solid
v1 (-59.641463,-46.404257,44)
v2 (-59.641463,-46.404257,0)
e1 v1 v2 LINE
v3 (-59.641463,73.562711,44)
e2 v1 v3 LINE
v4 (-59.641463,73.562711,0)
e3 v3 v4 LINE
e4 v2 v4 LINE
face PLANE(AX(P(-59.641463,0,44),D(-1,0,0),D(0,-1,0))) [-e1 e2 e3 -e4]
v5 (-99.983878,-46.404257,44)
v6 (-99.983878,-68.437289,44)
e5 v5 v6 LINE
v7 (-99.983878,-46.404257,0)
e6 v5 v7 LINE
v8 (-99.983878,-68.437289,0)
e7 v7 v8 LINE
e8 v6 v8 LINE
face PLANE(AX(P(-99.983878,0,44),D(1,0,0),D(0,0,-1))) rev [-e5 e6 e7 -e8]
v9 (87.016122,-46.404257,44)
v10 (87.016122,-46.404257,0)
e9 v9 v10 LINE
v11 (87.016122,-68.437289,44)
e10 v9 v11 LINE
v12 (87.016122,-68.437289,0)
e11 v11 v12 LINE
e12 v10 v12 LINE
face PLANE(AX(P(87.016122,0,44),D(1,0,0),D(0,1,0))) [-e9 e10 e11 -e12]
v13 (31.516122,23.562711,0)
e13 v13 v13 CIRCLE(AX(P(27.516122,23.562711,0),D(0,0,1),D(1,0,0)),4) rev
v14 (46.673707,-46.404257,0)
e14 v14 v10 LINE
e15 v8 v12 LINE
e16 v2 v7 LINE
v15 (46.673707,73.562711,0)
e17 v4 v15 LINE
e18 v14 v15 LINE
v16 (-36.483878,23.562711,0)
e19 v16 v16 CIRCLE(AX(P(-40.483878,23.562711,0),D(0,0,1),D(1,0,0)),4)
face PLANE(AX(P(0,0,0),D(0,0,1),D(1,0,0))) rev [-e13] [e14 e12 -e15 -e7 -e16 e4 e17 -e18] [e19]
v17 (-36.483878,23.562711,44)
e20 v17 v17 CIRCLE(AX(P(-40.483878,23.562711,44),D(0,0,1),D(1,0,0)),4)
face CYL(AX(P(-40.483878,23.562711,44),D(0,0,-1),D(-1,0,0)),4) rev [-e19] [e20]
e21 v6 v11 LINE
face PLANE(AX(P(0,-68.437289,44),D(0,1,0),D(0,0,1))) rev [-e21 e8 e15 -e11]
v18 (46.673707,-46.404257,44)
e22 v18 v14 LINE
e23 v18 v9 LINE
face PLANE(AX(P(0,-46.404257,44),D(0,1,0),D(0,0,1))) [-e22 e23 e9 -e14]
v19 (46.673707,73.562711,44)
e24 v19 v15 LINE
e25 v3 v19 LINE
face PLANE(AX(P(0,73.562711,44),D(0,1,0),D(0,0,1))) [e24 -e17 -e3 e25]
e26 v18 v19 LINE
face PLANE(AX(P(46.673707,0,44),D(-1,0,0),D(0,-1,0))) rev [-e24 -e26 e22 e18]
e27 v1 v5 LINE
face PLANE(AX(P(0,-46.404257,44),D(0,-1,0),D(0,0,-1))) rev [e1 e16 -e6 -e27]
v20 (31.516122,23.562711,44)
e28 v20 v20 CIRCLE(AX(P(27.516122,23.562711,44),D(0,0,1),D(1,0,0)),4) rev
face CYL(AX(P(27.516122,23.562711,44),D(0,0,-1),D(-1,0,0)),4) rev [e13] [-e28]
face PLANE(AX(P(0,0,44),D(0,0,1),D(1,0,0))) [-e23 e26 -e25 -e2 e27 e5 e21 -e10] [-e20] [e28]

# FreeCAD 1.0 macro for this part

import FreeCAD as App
import Part
import Sketcher
from FreeCAD import Vector
Q = App.Units.Quantity

doc = App.newDocument("Part")
params = doc.addObject("Spreadsheet::Sheet", "Params")
for row, (alias, value) in enumerate([
    ("sketch1_diameter", "8 mm"),
    ("sketch1_width", "187 mm"),
    ("pad1_length", "44 mm"),
], start=1):
    params.set(f"A{row}", alias)
    params.set(f"B{row}", "=" + value)
    params.setAlias(f"B{row}", alias)

body = doc.addObject("PartDesign::Body", "Body")

sketch1 = body.newObject("Sketcher::SketchObject", "Sketch")
sketch1.AttachmentSupport = (doc.getObject("XY_Plane"), [""])
sketch1.MapMode = "FlatFace"
sketch1.addGeometry([
    Part.LineSegment(Vector(87, -46.4, 0), Vector(46.7, -46.4, 0)),
    Part.LineSegment(Vector(46.7, -46.4, 0), Vector(46.7, 73.6, 0)),
    Part.LineSegment(Vector(46.7, 73.6, 0), Vector(-59.6, 73.6, 0)),
    Part.LineSegment(Vector(-59.6, 73.6, 0), Vector(-59.6, -46.4, 0)),
    Part.LineSegment(Vector(-59.6, -46.4, 0), Vector(-100, -46.4, 0)),
    Part.LineSegment(Vector(-100, -46.4, 0), Vector(-100, -68.4, 0)),
    Part.LineSegment(Vector(-100, -68.4, 0), Vector(87, -68.4, 0)),
    Part.LineSegment(Vector(87, -68.4, 0), Vector(87, -46.4, 0)),
    Part.Circle(Vector(27.5, 23.6, 0), Vector(0, 0, 1), 4),
    Part.Circle(Vector(-40.5, 23.6, 0), Vector(0, 0, 1), 4),
], False)
sketch1.addConstraint([
    Sketcher.Constraint("Coincident", 0, 2, 1, 1),
    Sketcher.Constraint("Coincident", 1, 2, 2, 1),
    Sketcher.Constraint("Coincident", 2, 2, 3, 1),
    Sketcher.Constraint("Coincident", 3, 2, 4, 1),
    Sketcher.Constraint("Coincident", 4, 2, 5, 1),
    Sketcher.Constraint("Coincident", 5, 2, 6, 1),
    Sketcher.Constraint("Coincident", 6, 2, 7, 1),
    Sketcher.Constraint("Coincident", 7, 2, 0, 1),
    Sketcher.Constraint("Horizontal", 0),
    Sketcher.Constraint("Vertical", 1),
    Sketcher.Constraint("Horizontal", 2),
    Sketcher.Constraint("Vertical", 3),
    Sketcher.Constraint("Horizontal", 4),
    Sketcher.Constraint("Vertical", 5),
    Sketcher.Constraint("Horizontal", 6),
    Sketcher.Constraint("Vertical", 7),
    Sketcher.Constraint("Equal", 8, 9),
    Sketcher.Constraint("Horizontal", 8, 3, 9, 3),
    Sketcher.Constraint("Horizontal", 0, 2, 3, 2),
    Sketcher.Constraint("Equal", 0, 4),
    Sketcher.Constraint("Diameter", 8, Q("8 mm")),
    Sketcher.Constraint("DistanceX", 6, 1, 6, 2, Q("187 mm")),
    Sketcher.Constraint("DistanceX", 9, 3, 8, 3, Q("68 mm")),
    Sketcher.Constraint("DistanceY", 8, 3, 1, 2, Q("50 mm")),
    Sketcher.Constraint("DistanceY", 5, 2, 9, 3, Q("92 mm")),
    Sketcher.Constraint("DistanceX", 4, 2, 9, 3, Q("59.5 mm")),
    Sketcher.Constraint("DistanceX", 2, 2, 2, 1, Q("106.31517 mm")),
    Sketcher.Constraint("DistanceY", 1, 1, 1, 2, Q("119.966968 mm")),
    Sketcher.Constraint("DistanceY", -1, 1, 8, 3, Q("23.562711 mm")),
    Sketcher.Constraint("DistanceX", -1, 1, 8, 3, Q("27.516122 mm")),
])
sketch1.setExpression("Constraints[20]", "Params.sketch1_diameter")
sketch1.setExpression("Constraints[21]", "Params.sketch1_width")
pad1 = body.newObject("PartDesign::Pad", "Pad")
pad1.Profile = sketch1
pad1.setExpression("Length", "Params.pad1_length")

doc.recompute()
